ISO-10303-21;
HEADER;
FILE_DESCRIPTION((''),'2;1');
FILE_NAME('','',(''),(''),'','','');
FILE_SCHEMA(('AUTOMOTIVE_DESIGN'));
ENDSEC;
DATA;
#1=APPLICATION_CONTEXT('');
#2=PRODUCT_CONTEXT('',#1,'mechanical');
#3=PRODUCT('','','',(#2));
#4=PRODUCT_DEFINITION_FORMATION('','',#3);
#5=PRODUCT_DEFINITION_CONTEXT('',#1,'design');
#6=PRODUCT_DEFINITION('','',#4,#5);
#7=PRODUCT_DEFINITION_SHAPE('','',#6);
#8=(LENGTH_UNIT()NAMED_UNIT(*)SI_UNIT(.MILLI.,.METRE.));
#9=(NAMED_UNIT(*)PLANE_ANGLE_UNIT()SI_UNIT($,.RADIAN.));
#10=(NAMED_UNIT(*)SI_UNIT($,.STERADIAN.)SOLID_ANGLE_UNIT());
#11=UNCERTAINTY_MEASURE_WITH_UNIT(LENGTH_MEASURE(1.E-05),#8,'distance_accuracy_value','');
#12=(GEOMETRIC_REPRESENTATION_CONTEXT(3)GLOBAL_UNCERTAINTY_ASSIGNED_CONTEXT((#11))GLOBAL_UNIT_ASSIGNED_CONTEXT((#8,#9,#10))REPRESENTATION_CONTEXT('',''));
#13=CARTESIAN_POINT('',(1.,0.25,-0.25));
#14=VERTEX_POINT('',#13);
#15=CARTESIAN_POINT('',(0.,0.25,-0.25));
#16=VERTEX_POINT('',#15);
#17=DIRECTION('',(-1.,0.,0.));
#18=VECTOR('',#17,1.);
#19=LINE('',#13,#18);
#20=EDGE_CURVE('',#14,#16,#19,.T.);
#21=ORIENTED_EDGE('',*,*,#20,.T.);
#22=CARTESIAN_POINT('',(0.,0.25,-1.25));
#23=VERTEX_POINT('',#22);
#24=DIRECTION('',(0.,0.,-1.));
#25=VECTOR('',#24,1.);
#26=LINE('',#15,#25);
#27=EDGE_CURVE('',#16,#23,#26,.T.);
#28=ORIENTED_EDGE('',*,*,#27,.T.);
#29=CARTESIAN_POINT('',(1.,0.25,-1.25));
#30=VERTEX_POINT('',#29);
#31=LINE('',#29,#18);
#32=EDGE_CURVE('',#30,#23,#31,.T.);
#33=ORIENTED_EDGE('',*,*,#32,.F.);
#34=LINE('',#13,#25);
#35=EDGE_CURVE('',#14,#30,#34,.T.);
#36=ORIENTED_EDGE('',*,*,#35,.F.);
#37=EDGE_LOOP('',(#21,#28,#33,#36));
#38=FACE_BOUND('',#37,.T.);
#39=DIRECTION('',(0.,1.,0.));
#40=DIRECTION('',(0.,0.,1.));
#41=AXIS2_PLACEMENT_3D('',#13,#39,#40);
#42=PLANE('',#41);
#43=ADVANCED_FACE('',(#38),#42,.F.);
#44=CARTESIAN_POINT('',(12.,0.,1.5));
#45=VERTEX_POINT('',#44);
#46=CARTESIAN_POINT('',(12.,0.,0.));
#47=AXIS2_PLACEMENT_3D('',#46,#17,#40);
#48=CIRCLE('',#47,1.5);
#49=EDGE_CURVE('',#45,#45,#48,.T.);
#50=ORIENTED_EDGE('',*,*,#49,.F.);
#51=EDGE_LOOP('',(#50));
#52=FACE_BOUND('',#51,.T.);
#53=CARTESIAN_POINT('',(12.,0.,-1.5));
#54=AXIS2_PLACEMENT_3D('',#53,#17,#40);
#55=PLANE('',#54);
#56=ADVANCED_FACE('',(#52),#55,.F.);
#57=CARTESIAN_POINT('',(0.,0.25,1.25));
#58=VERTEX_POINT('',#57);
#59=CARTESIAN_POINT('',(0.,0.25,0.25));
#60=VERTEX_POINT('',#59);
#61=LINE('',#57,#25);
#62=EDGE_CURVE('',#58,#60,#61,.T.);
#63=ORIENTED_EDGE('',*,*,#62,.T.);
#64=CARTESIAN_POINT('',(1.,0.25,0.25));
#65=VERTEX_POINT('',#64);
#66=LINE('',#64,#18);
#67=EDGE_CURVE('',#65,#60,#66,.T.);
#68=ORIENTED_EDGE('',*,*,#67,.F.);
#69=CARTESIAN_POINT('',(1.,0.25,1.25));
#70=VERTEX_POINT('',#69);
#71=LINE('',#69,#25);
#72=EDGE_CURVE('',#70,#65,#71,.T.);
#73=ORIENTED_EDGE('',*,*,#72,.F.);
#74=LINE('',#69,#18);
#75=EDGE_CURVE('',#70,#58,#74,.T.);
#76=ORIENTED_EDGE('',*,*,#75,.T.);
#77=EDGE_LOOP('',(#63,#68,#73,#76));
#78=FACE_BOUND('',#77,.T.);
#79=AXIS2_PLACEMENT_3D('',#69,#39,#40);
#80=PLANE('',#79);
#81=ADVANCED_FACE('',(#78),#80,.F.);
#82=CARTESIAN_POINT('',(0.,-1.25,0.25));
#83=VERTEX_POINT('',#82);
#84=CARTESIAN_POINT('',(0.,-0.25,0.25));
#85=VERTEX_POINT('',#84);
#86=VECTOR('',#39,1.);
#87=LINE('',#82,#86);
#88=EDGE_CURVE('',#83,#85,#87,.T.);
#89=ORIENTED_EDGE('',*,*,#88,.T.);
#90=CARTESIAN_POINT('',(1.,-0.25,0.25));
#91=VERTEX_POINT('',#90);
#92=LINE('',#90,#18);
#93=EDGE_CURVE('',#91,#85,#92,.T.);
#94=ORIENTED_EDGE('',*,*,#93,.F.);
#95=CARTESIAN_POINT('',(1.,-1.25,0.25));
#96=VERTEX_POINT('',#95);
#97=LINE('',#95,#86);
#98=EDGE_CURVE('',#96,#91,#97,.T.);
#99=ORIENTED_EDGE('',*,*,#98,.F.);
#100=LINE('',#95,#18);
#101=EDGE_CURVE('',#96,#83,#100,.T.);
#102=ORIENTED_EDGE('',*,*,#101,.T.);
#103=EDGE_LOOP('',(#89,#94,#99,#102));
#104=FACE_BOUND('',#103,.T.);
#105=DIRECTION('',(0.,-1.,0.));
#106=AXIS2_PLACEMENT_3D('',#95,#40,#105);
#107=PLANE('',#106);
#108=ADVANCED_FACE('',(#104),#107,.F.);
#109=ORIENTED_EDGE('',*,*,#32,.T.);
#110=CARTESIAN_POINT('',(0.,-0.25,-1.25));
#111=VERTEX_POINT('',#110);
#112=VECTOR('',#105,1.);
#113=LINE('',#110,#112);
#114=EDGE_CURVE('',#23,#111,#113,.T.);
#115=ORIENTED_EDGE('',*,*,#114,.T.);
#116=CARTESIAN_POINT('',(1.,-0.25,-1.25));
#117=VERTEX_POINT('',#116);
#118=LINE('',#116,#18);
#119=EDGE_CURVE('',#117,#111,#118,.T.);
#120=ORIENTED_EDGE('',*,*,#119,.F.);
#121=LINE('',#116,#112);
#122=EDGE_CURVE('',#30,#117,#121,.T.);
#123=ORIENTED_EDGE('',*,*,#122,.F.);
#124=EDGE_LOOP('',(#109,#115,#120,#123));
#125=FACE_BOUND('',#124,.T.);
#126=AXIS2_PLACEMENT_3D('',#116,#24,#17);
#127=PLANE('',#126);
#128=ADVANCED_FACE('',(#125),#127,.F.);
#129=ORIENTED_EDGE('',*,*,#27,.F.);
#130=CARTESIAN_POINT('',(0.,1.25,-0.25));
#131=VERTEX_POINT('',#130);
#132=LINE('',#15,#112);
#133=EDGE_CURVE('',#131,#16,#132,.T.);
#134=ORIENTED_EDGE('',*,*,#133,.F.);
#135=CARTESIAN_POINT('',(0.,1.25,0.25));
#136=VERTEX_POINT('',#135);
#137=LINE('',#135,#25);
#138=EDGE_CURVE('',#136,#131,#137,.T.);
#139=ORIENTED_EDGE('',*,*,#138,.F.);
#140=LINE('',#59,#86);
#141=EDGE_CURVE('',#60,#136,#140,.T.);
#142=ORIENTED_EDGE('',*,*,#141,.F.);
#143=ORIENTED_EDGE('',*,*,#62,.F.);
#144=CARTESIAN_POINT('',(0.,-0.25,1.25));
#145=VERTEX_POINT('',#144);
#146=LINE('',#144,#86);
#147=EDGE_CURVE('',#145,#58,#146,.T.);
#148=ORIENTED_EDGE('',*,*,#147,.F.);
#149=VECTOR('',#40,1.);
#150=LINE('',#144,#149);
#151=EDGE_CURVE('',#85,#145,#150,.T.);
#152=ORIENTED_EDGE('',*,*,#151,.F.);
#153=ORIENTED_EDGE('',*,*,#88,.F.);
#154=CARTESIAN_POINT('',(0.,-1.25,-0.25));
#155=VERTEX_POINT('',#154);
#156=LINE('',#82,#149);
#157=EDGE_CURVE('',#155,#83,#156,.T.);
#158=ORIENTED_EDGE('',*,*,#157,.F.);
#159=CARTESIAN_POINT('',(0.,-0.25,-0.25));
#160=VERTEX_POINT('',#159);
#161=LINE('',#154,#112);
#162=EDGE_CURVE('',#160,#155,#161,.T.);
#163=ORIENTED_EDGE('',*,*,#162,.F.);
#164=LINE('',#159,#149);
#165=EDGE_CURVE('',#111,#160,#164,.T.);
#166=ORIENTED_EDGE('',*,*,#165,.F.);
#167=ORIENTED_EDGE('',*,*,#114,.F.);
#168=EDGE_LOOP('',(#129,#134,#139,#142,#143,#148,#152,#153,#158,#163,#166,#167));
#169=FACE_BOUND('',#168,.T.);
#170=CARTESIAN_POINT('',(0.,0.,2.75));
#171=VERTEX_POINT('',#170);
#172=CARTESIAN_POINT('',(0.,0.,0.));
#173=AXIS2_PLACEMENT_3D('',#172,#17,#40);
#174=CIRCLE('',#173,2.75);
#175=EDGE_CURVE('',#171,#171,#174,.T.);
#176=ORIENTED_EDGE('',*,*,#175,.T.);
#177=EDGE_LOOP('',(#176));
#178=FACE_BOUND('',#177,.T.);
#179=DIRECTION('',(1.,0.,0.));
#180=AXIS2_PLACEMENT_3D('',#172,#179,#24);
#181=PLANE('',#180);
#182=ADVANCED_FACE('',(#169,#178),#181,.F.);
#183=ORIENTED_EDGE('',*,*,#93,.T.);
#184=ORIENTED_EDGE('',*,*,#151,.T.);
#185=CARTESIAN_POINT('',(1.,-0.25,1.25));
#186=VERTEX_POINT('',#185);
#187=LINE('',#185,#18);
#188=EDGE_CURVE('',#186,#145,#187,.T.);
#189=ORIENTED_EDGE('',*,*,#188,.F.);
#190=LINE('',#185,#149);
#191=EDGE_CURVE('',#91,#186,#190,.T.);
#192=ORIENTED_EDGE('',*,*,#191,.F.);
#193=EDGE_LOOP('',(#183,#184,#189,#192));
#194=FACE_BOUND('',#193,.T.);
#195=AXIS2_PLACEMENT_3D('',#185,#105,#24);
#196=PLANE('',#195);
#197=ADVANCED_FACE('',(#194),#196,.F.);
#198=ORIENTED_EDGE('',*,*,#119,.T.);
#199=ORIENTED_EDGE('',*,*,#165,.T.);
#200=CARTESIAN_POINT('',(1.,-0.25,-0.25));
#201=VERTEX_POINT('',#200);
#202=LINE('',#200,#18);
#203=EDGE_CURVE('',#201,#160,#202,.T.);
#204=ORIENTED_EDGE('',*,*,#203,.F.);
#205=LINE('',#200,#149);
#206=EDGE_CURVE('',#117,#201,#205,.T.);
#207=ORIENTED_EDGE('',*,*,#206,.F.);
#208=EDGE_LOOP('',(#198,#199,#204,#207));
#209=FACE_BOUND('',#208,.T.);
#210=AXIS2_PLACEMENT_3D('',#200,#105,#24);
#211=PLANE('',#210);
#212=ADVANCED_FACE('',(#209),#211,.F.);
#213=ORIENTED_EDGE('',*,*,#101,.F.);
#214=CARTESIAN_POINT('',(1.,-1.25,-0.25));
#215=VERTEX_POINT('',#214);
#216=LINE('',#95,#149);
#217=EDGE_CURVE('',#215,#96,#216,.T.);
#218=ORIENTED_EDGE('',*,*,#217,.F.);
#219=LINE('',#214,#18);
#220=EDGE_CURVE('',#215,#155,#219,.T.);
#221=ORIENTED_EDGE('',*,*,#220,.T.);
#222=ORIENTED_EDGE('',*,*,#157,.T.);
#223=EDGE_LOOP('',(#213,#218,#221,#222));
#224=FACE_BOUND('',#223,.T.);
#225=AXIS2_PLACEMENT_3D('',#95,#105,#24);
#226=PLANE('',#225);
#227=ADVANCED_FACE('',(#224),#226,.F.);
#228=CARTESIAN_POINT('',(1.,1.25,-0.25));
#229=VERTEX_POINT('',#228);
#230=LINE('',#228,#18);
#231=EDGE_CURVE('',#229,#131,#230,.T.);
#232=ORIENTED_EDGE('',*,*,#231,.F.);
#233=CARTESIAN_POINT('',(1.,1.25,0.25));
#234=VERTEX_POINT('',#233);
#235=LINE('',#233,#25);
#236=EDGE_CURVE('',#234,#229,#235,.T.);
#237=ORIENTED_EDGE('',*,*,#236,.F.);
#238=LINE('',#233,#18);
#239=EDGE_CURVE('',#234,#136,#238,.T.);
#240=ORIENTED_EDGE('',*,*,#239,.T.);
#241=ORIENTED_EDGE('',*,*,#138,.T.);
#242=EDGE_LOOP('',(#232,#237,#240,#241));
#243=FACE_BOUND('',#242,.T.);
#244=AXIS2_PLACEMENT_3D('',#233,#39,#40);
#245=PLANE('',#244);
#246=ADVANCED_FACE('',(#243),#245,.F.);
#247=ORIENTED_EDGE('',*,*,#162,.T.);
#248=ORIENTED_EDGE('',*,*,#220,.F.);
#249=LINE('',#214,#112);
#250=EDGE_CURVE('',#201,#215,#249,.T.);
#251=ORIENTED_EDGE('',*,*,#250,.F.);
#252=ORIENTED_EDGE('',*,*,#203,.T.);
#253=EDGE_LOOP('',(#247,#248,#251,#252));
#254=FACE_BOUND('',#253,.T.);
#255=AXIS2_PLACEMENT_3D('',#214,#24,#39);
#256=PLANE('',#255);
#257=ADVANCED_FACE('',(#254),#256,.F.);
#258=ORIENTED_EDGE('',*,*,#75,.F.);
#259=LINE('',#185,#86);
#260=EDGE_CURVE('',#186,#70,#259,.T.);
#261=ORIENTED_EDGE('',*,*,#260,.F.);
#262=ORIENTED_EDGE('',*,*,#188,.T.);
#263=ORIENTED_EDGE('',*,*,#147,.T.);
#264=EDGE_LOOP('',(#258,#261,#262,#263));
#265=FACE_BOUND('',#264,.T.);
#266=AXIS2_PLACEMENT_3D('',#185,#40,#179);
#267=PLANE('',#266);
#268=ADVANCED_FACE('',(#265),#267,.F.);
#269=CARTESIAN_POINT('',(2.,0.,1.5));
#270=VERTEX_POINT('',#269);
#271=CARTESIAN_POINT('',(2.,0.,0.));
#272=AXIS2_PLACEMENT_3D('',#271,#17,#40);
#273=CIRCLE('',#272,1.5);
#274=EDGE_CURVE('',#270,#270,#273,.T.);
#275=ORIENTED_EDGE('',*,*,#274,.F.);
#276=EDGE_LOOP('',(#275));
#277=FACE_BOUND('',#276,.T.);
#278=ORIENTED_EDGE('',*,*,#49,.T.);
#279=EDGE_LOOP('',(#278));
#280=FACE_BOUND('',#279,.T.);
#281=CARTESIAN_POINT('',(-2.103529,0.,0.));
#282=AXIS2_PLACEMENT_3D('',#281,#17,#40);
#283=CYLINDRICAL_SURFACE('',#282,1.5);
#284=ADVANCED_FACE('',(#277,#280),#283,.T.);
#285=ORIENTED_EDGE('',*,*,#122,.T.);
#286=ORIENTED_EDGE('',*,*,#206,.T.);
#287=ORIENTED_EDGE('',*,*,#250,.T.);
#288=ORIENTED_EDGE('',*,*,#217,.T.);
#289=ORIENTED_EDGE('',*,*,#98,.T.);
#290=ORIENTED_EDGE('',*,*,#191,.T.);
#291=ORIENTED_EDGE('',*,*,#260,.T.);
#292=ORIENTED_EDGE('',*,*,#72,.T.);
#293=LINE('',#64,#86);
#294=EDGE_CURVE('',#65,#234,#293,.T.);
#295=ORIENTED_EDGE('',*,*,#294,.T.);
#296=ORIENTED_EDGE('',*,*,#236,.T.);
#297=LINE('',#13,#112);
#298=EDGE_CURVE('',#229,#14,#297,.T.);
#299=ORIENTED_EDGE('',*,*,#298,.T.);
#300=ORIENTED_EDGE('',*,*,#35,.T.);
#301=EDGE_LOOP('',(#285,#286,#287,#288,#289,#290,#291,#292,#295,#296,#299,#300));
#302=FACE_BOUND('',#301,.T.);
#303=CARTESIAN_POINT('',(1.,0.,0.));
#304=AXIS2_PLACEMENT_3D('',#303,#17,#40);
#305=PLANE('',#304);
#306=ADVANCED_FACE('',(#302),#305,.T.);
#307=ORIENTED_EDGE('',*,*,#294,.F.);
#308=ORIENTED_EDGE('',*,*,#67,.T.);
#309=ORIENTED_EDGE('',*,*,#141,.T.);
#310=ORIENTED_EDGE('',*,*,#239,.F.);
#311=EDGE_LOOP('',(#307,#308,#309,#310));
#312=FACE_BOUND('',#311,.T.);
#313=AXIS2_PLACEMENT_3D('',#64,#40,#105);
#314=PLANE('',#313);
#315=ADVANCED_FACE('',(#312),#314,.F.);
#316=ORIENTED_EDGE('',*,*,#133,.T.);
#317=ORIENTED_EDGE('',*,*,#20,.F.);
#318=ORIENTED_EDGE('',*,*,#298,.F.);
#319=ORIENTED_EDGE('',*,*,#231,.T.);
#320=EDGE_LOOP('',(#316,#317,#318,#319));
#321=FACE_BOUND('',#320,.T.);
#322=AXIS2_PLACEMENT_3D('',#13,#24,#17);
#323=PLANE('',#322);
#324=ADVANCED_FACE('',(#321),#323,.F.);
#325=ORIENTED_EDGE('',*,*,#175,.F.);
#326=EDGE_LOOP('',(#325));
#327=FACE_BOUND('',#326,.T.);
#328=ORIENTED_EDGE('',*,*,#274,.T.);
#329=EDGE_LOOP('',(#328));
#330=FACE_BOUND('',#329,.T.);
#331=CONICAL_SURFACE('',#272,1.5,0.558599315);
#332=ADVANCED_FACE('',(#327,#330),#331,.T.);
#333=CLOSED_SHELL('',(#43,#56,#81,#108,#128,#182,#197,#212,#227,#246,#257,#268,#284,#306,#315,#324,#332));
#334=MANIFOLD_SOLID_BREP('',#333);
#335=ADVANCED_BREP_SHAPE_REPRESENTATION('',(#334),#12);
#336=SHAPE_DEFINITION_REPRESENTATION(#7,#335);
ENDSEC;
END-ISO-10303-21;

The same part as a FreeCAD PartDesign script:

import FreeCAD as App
import Part
import Sketcher
from FreeCAD import Vector


def add_polygon(sketch, points):
    """Adds a closed chain of lines whose ends are joined by coincident constraints."""
    first, n = sketch.GeometryCount, len(points)
    for a, b in zip(points, points[1:] + points[:1]):
        sketch.addGeometry(Part.LineSegment(App.Vector(*a, 0), App.Vector(*b, 0)), False)
    for i in range(n):
        sketch.addConstraint(Sketcher.Constraint("Coincident", first + i, 2, first + (i + 1) % n, 1))

doc = App.newDocument("Part")
params = doc.addObject("Spreadsheet::Sheet", "Params")
for row, (alias, value) in enumerate([
    ("sketch1_width", "12 mm"),
    ("sketch1_width2", "10 mm"),
    ("sketch1_height", "1.5 mm"),
    ("sketch1_height2", "2.75 mm"),
    ("revolution_angle", "360 deg"),
    ("sketch2_width", "1 mm"),
    ("sketch2_width2", "0.5 mm"),
    ("pocket1_length", "1 mm"),
], start=1):
    params.set(f"A{row}", alias)
    params.set(f"B{row}", "=" + value)
    params.setAlias(f"B{row}", alias)

body = doc.addObject("PartDesign::Body", "Body")

# Sketch on XZ plane
sketch1 = body.newObject("Sketcher::SketchObject", "Sketch")
sketch1.AttachmentSupport = (doc.getObject("XZ_Plane"), [""])
sketch1.MapMode = "FlatFace"
add_polygon(sketch1, [(0, -2.75), (0, 0), (12, 0), (12, -1.5), (2, -1.5)])  # lines 0-4
sketch1.addConstraint([
    Sketcher.Constraint("Vertical", 0),
    Sketcher.Constraint("Horizontal", 1),
    Sketcher.Constraint("Vertical", 2),
    Sketcher.Constraint("Horizontal", 3),
    Sketcher.Constraint("Coincident", 0, 2, -1, 1),
    Sketcher.Constraint("DistanceX", 1, 1, 1, 2, 12.0),
    Sketcher.Constraint("DistanceX", 3, 2, 3, 1, 10.0),
    Sketcher.Constraint("DistanceY", 2, 2, 2, 1, 1.5),
    Sketcher.Constraint("DistanceY", 0, 1, 0, 2, 2.75),
])
sketch1.setExpression("Constraints[10]", "Params.sketch1_width")
sketch1.setExpression("Constraints[11]", "Params.sketch1_width2")
sketch1.setExpression("Constraints[12]", "Params.sketch1_height")
sketch1.setExpression("Constraints[13]", "Params.sketch1_height2")
revolution = body.newObject("PartDesign::Revolution", "Revolution")
revolution.Profile = sketch1
revolution.ReferenceAxis = (sketch1, ["H_Axis"])
revolution.setExpression("Angle", "Params.revolution_angle")

# Sketch on YZ plane
sketch2 = body.newObject("Sketcher::SketchObject", "Sketch001")
sketch2.AttachmentSupport = (doc.getObject("YZ_Plane"), [""])
sketch2.MapMode = "FlatFace"
add_polygon(sketch2, [(0.25, -0.25), (0.25, -1.25), (-0.25, -1.25), (-0.25, -0.25), (-1.25, -0.25), (-1.25, 0.25), (-0.25, 0.25), (-0.25, 1.25), (0.25, 1.25), (0.25, 0.25), (1.25, 0.25), (1.25, -0.25)])  # lines 0-11
sketch2.addConstraint([
    Sketcher.Constraint("Vertical", 0),
    Sketcher.Constraint("Horizontal", 1),
    Sketcher.Constraint("Vertical", 2),
    Sketcher.Constraint("Horizontal", 3),
    Sketcher.Constraint("Vertical", 4),
    Sketcher.Constraint("Horizontal", 5),
    Sketcher.Constraint("Vertical", 6),
    Sketcher.Constraint("Horizontal", 7),
    Sketcher.Constraint("Vertical", 8),
    Sketcher.Constraint("Horizontal", 9),
    Sketcher.Constraint("Vertical", 10),
    Sketcher.Constraint("Horizontal", 11),
    Sketcher.Constraint("Symmetric", 0, 2, 6, 2, -1, 1),
    Sketcher.Constraint("Symmetric", 2, 2, 8, 2, -1, 1),
    Sketcher.Constraint("Symmetric", 4, 2, 10, 2, -1, 1),
    Sketcher.Constraint("Symmetric", 5, 2, 8, 2, -2),
    Sketcher.Constraint("Equal", 11, 0),
    Sketcher.Constraint("Equal", 7, 4),
    Sketcher.Constraint("DistanceX", 3, 2, 3, 1, 1.0),
    Sketcher.Constraint("DistanceX", 1, 2, 1, 1, 0.5),
])
sketch2.setExpression("Constraints[30]", "Params.sketch2_width")
sketch2.setExpression("Constraints[31]", "Params.sketch2_width2")
pocket1 = body.newObject("PartDesign::Pocket", "Pocket")
pocket1.Profile = sketch2
pocket1.setExpression("Length", "Params.pocket1_length")
pocket1.Reversed = True

doc.recompute()
